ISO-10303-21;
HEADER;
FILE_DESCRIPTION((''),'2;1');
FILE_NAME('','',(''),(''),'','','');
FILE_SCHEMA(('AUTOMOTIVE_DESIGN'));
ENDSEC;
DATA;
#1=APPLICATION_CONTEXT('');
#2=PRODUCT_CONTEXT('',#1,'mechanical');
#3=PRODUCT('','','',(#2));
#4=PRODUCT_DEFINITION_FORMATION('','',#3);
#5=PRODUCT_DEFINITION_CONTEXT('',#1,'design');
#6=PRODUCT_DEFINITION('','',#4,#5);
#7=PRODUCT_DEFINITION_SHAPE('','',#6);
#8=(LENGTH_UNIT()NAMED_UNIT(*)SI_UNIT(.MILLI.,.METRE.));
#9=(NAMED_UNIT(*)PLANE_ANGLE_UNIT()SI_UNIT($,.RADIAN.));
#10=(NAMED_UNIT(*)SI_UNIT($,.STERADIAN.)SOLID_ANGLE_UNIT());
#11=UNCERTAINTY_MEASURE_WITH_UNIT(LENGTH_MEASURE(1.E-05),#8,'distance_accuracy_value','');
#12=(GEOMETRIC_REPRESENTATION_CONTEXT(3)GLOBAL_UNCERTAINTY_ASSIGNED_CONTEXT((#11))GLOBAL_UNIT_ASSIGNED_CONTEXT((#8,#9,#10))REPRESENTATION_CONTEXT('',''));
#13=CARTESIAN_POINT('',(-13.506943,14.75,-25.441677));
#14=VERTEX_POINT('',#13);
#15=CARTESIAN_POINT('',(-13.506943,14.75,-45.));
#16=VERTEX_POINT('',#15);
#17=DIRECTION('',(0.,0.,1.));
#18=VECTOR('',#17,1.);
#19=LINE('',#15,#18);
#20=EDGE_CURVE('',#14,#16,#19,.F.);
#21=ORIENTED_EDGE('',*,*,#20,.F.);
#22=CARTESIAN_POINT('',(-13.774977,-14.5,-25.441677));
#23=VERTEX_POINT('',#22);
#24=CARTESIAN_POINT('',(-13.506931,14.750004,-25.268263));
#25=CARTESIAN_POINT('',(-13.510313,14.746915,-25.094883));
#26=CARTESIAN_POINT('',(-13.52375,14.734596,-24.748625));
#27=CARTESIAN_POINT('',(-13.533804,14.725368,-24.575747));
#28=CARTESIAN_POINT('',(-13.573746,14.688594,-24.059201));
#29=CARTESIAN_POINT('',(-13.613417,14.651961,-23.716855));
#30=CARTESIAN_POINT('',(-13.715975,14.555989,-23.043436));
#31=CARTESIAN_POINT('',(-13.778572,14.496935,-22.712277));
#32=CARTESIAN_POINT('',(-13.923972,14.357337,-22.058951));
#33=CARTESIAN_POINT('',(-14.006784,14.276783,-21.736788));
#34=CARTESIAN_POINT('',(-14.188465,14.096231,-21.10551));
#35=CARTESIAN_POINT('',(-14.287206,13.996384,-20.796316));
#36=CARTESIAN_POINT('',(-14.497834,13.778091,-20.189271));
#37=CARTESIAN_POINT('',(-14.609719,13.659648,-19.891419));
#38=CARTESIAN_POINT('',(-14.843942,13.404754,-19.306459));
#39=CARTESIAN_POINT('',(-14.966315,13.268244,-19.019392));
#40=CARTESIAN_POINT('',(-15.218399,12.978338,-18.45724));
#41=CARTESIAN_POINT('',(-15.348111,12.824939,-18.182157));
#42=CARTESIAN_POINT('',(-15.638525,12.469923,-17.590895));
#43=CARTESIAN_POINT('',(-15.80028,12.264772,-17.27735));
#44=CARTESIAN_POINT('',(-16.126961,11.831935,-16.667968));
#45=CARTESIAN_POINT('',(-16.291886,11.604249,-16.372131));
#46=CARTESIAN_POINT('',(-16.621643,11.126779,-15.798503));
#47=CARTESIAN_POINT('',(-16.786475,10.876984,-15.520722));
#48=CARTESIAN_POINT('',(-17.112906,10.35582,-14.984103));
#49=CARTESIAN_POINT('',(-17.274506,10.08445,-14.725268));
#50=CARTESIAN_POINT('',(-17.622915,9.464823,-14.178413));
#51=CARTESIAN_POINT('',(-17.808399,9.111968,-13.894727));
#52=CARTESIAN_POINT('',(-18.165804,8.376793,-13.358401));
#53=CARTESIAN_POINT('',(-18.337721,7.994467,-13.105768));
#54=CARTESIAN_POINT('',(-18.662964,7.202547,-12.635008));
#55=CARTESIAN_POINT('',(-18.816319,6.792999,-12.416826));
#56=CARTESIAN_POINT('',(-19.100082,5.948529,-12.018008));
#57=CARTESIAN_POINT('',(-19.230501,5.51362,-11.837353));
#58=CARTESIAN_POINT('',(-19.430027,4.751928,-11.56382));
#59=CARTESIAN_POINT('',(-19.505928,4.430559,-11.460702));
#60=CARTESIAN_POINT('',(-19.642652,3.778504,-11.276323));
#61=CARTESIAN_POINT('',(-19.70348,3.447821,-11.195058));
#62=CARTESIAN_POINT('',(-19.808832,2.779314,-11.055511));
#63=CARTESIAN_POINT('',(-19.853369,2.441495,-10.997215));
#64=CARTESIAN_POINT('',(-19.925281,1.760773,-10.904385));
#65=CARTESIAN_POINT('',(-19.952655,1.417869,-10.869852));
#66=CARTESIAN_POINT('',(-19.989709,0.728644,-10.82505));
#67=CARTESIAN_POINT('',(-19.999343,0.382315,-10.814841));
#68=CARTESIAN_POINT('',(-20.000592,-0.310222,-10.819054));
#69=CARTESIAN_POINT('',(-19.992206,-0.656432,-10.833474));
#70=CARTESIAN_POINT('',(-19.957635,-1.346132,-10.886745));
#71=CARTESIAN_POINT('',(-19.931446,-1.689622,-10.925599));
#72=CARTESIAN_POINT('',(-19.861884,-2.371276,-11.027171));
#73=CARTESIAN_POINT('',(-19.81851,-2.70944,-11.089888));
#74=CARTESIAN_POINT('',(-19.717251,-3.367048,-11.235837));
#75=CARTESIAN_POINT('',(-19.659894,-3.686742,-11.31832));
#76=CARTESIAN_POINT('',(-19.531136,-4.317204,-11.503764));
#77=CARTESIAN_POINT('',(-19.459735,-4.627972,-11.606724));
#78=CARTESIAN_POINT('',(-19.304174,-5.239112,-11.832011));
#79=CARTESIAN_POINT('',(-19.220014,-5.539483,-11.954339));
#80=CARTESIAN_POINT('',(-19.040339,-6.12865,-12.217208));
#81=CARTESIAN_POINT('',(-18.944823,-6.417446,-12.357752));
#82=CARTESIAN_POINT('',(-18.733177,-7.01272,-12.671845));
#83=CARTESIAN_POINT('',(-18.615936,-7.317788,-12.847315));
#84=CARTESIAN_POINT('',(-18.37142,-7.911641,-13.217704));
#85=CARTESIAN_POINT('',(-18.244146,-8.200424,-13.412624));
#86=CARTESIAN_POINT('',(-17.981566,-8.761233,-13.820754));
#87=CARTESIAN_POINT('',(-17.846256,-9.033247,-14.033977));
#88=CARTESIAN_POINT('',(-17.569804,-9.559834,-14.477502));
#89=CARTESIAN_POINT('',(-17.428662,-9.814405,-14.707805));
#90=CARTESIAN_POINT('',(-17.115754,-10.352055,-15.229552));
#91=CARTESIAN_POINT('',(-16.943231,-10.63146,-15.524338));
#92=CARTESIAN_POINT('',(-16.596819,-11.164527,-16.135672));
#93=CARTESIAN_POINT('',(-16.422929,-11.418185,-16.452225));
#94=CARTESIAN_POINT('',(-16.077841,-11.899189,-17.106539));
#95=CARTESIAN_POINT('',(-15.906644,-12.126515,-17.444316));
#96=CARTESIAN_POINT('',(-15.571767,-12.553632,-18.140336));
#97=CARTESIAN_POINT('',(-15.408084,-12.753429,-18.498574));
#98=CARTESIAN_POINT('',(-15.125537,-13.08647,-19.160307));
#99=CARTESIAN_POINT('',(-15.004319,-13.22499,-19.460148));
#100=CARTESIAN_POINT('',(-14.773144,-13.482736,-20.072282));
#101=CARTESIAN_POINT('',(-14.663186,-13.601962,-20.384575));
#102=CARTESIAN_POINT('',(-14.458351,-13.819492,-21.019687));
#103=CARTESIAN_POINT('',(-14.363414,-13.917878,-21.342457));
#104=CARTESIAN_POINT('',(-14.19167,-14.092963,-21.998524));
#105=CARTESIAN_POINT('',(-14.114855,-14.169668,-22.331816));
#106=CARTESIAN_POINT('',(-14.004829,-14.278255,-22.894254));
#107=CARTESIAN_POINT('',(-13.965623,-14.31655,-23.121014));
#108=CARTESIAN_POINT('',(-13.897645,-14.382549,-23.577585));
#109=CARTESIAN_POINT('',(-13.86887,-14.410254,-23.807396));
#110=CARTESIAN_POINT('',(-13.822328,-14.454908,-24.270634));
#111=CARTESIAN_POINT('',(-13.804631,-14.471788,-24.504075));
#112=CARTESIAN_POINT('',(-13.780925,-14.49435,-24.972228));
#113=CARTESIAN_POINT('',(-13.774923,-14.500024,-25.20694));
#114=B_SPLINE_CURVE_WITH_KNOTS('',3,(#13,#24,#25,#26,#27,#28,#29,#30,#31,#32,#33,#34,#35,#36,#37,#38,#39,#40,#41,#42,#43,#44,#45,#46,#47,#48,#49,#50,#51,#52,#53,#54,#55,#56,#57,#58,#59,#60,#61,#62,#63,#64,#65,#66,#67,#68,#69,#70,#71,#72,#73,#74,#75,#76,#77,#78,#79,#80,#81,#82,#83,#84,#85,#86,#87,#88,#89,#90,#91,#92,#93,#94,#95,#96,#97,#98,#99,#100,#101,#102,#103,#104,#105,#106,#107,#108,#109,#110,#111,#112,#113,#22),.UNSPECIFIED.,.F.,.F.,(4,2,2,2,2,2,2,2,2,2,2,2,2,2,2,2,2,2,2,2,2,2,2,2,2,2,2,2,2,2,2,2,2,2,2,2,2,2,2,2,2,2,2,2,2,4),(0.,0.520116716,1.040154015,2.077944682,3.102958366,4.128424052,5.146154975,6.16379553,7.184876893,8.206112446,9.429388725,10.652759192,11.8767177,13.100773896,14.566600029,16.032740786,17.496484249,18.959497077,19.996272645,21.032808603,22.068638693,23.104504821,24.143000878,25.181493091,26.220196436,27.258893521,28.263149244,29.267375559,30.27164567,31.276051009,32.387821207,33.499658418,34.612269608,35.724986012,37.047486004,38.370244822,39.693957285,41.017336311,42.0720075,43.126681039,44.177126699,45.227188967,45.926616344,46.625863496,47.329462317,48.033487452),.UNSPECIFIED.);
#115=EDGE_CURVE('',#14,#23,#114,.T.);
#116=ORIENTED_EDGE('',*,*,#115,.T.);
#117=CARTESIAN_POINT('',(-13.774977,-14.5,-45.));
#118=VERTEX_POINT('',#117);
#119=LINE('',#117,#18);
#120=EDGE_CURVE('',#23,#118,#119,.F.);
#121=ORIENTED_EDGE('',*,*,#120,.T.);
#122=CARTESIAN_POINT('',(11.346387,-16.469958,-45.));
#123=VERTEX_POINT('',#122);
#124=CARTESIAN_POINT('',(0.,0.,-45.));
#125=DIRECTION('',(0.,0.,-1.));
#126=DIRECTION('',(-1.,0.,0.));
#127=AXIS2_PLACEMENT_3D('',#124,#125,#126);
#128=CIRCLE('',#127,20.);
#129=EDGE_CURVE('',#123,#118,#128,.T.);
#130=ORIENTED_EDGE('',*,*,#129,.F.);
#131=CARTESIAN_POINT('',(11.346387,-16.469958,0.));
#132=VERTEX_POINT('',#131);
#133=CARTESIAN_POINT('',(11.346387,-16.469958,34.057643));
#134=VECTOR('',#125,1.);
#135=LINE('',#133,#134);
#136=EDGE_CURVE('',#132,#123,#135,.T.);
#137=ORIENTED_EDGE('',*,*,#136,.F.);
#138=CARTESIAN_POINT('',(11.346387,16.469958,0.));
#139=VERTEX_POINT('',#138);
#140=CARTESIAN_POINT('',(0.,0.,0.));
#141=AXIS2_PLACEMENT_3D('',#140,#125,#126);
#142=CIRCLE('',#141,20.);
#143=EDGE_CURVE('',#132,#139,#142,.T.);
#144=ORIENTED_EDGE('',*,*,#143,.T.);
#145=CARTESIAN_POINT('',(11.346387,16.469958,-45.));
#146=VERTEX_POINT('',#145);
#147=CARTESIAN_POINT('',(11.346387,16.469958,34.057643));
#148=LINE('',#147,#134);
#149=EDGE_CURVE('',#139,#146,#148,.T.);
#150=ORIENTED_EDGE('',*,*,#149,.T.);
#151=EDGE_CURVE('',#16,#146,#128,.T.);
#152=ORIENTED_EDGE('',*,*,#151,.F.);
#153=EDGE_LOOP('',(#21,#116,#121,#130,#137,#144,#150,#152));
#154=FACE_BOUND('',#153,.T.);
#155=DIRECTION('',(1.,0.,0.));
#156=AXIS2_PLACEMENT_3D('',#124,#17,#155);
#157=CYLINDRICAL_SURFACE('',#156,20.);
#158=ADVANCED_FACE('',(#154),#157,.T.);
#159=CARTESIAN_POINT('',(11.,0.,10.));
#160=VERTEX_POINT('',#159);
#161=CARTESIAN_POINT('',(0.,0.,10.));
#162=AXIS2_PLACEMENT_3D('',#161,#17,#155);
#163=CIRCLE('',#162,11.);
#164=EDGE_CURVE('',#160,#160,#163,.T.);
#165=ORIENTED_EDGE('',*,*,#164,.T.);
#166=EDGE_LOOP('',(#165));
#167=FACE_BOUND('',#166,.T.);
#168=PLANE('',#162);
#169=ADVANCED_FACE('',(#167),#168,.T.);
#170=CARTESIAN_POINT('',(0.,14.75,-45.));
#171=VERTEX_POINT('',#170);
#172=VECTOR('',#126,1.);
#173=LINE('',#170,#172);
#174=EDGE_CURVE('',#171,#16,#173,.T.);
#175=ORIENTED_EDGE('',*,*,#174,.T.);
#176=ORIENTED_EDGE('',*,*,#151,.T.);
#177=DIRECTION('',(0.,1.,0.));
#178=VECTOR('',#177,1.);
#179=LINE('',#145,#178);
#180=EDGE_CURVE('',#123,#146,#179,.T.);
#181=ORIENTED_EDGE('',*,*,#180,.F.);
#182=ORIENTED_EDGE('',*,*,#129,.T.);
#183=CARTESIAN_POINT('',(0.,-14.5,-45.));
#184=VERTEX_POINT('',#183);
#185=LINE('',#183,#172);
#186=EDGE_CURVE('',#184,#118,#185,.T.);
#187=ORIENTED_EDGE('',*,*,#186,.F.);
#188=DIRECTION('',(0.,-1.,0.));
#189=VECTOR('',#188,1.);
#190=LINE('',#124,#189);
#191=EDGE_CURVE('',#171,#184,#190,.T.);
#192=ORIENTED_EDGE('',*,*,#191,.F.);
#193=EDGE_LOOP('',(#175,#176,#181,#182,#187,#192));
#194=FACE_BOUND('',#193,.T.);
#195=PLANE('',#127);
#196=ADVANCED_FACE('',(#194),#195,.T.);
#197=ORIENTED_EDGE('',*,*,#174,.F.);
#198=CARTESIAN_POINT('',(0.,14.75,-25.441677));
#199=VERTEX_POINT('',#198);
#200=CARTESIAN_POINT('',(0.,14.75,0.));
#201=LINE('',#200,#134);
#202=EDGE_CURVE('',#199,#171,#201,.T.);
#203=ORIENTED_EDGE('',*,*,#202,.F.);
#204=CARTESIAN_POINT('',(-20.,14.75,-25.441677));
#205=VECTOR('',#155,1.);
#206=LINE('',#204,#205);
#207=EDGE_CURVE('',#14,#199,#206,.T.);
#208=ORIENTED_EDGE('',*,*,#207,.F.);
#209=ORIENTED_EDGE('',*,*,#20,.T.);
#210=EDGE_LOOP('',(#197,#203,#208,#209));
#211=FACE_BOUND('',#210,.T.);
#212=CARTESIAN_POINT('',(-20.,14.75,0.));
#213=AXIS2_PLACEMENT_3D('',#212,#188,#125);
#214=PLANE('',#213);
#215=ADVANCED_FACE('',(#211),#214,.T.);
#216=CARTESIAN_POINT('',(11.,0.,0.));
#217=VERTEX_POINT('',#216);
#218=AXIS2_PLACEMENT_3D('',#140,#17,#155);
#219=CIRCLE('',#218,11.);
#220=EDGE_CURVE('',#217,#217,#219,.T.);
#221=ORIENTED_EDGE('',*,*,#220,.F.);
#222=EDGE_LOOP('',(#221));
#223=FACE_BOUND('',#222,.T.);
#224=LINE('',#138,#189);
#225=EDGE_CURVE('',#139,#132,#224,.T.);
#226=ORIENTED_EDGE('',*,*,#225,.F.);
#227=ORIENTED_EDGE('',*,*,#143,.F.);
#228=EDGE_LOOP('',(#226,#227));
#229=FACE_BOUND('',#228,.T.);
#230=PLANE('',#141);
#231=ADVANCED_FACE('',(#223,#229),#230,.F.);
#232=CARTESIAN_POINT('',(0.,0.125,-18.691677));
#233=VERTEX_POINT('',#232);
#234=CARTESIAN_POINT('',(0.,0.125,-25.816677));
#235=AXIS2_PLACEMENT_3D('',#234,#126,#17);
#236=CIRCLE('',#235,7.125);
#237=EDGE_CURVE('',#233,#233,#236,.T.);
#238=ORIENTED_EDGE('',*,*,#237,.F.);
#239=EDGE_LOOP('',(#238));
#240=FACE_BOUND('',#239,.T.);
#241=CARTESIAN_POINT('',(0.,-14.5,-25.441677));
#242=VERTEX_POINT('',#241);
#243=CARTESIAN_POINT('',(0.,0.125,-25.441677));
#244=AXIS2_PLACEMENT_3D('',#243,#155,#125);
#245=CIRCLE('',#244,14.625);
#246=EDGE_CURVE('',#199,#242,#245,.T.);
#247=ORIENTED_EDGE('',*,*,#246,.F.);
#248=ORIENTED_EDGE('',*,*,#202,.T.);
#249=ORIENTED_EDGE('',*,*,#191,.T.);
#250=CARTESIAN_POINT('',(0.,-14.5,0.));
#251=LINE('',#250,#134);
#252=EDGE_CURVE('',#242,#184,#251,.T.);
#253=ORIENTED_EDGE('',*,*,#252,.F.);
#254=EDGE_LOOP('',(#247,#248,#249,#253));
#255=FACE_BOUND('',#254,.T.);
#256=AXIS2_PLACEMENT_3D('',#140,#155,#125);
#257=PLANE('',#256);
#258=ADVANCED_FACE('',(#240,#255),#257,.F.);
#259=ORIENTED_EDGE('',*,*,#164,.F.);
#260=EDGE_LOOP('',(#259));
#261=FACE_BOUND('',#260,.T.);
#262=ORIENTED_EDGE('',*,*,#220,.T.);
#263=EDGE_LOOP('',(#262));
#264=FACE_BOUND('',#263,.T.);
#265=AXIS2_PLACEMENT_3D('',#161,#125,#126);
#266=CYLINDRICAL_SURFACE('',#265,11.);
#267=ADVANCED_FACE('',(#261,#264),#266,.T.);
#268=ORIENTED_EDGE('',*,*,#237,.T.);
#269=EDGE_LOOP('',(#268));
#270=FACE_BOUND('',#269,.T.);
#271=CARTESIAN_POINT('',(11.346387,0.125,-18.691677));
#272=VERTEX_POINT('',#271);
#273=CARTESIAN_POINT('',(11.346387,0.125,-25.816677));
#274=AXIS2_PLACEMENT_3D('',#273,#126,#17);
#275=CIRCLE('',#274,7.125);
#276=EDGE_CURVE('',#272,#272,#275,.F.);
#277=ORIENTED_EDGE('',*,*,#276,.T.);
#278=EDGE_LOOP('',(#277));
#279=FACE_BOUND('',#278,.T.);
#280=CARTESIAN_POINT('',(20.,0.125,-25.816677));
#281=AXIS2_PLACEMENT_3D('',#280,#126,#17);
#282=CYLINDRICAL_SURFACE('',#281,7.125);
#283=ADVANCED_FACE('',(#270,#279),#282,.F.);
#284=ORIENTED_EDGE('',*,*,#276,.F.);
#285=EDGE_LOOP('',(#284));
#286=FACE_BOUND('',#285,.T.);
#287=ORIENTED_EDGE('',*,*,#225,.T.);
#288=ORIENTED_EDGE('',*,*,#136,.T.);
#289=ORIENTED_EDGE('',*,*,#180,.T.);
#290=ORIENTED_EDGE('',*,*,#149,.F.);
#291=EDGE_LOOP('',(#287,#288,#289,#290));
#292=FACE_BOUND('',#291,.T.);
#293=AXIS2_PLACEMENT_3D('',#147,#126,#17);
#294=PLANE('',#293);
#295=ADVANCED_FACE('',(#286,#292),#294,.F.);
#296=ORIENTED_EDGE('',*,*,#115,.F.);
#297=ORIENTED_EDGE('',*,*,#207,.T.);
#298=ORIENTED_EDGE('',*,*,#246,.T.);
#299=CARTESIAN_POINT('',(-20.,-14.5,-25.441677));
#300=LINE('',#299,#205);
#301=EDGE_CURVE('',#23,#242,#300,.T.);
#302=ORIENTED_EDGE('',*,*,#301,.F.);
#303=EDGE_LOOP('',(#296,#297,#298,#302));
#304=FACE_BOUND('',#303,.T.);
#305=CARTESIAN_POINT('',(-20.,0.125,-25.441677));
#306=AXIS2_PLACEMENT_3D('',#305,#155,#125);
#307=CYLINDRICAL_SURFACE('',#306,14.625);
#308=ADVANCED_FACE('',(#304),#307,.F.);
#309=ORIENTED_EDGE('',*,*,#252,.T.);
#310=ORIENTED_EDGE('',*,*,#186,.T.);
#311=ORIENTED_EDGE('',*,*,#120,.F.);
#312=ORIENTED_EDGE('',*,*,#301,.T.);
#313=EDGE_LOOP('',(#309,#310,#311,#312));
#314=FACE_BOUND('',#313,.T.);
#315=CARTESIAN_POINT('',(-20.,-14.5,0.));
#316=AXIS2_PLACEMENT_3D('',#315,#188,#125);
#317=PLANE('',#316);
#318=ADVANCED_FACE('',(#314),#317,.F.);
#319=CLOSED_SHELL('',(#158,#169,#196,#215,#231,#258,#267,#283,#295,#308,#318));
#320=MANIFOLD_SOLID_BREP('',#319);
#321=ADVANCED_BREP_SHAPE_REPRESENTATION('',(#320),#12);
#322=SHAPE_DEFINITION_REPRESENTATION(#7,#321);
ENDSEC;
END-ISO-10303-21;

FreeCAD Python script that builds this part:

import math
import FreeCAD as App
import Part
import Sketcher
from FreeCAD import Vector

doc = App.newDocument("Part")
body = doc.addObject("PartDesign::Body", "Body")

# Sketch on XY plane
sketch1 = body.newObject("Sketcher::SketchObject", "Sketch")
sketch1.AttachmentSupport = (doc.getObject("XY_Plane"), [""])
sketch1.MapMode = "FlatFace"
sketch1.addGeometry(Part.Circle(Vector(0, 0, 0), Vector(0, 0, 1), 11), False)
sketch1.addConstraint(Sketcher.Constraint("Coincident", 0, 3, -1, 1))
sketch1.addConstraint(Sketcher.Constraint("Diameter", 0, 22.0))
pad1 = body.newObject("PartDesign::Pad", "Pad")
pad1.Profile = sketch1
pad1.Length = 10

# Sketch on XY plane
sketch2 = body.newObject("Sketcher::SketchObject", "Sketch001")
sketch2.AttachmentSupport = (doc.getObject("XY_Plane"), [""])
sketch2.MapMode = "FlatFace"
sketch2.addGeometry(Part.Circle(Vector(0, 0, 0), Vector(0, 0, 1), 20), False)
sketch2.addConstraint(Sketcher.Constraint("Coincident", 0, 3, -1, 1))
sketch2.addConstraint(Sketcher.Constraint("Diameter", 0, 40.0))
pad2 = body.newObject("PartDesign::Pad", "Pad001")
pad2.Profile = sketch2
pad2.Length = 45
pad2.Reversed = True

# Sketch on YZ plane
sketch3 = body.newObject("Sketcher::SketchObject", "Sketch002")
sketch3.AttachmentSupport = (doc.getObject("YZ_Plane"), [""])
sketch3.MapMode = "FlatFace"
sketch3.addGeometry(Part.LineSegment(Vector(15, -75, 0), Vector(15, -25, 0)), False)
sketch3.addGeometry(Part.ArcOfCircle(Part.Circle(Vector(0, -25, 0), Vector(0, 0, 1), 15), math.radians(0), math.radians(180)), False)
sketch3.addGeometry(Part.LineSegment(Vector(-14, -25, 0), Vector(-14, -75, 0)), False)
sketch3.addGeometry(Part.LineSegment(Vector(-14, -75, 0), Vector(15, -75, 0)), False)
sketch3.addConstraint(Sketcher.Constraint("Tangent", 0, 2, 1, 1))
sketch3.addConstraint(Sketcher.Constraint("Tangent", 1, 2, 2, 1))
sketch3.addConstraint(Sketcher.Constraint("Coincident", 2, 2, 3, 1))
sketch3.addConstraint(Sketcher.Constraint("Coincident", 3, 2, 0, 1))
sketch3.addConstraint(Sketcher.Constraint("Vertical", 0))
sketch3.addConstraint(Sketcher.Constraint("Vertical", 2))
sketch3.addConstraint(Sketcher.Constraint("Horizontal", 3))
sketch3.addConstraint(Sketcher.Constraint("DistanceY", 0, 1, 0, 2, 50.0))
sketch3.addConstraint(Sketcher.Constraint("Radius", 1, 14.625))
sketch3.addConstraint(Sketcher.Constraint("DistanceX", 1, 2, -1, 1, 14.5))
sketch3.addConstraint(Sketcher.Constraint("DistanceY", 1, 3, -1, 1, 25.441677))
pocket1 = body.newObject("PartDesign::Pocket", "Pocket")
pocket1.Profile = sketch3
pocket1.Type = "ThroughAll"

# Sketch on YZ plane
sketch4 = body.newObject("Sketcher::SketchObject", "Sketch003")
sketch4.AttachmentSupport = (doc.getObject("YZ_Plane"), [""])
sketch4.MapMode = "FlatFace"
sketch4.addGeometry(Part.Circle(Vector(0, -26, 0), Vector(0, 0, 1), 7), False)
sketch4.addConstraint(Sketcher.Constraint("Diameter", 0, 14.25))
sketch4.addConstraint(Sketcher.Constraint("DistanceX", -1, 1, 0, 3, 0.125))
sketch4.addConstraint(Sketcher.Constraint("DistanceY", 0, 3, -1, 1, 25.816677))
pocket2 = body.newObject("PartDesign::Pocket", "Pocket001")
pocket2.Profile = sketch4
pocket2.Type = "ThroughAll"
pocket2.Reversed = True

# Sketch on XY plane
sketch5 = body.newObject("Sketcher::SketchObject", "Sketch004")
sketch5.AttachmentSupport = (doc.getObject("XY_Plane"), [""])
sketch5.MapMode = "FlatFace"
sketch5.addGeometry(Part.LineSegment(Vector(11, -16, 0), Vector(11, 16, 0)), False)
sketch5.addGeometry(Part.ArcOfCircle(Part.Circle(Vector(0, 0, 0), Vector(0, 0, 1), 20), math.radians(-55), math.radians(55)), False)
sketch5.addConstraint(Sketcher.Constraint("Coincident", 0, 1, 1, 1))
sketch5.addConstraint(Sketcher.Constraint("Coincident", 1, 2, 0, 2))
sketch5.addConstraint(Sketcher.Constraint("Vertical", 0))
sketch5.addConstraint(Sketcher.Constraint("Coincident", 1, 3, -1, 1))
sketch5.addConstraint(Sketcher.Constraint("Radius", 1, 20.0))
sketch5.addConstraint(Sketcher.Constraint("DistanceY", 0, 1, 0, 2, 32.939915))
pocket3 = body.newObject("PartDesign::Pocket", "Pocket002")
pocket3.Profile = sketch5
pocket3.Length = 45

doc.recompute()
